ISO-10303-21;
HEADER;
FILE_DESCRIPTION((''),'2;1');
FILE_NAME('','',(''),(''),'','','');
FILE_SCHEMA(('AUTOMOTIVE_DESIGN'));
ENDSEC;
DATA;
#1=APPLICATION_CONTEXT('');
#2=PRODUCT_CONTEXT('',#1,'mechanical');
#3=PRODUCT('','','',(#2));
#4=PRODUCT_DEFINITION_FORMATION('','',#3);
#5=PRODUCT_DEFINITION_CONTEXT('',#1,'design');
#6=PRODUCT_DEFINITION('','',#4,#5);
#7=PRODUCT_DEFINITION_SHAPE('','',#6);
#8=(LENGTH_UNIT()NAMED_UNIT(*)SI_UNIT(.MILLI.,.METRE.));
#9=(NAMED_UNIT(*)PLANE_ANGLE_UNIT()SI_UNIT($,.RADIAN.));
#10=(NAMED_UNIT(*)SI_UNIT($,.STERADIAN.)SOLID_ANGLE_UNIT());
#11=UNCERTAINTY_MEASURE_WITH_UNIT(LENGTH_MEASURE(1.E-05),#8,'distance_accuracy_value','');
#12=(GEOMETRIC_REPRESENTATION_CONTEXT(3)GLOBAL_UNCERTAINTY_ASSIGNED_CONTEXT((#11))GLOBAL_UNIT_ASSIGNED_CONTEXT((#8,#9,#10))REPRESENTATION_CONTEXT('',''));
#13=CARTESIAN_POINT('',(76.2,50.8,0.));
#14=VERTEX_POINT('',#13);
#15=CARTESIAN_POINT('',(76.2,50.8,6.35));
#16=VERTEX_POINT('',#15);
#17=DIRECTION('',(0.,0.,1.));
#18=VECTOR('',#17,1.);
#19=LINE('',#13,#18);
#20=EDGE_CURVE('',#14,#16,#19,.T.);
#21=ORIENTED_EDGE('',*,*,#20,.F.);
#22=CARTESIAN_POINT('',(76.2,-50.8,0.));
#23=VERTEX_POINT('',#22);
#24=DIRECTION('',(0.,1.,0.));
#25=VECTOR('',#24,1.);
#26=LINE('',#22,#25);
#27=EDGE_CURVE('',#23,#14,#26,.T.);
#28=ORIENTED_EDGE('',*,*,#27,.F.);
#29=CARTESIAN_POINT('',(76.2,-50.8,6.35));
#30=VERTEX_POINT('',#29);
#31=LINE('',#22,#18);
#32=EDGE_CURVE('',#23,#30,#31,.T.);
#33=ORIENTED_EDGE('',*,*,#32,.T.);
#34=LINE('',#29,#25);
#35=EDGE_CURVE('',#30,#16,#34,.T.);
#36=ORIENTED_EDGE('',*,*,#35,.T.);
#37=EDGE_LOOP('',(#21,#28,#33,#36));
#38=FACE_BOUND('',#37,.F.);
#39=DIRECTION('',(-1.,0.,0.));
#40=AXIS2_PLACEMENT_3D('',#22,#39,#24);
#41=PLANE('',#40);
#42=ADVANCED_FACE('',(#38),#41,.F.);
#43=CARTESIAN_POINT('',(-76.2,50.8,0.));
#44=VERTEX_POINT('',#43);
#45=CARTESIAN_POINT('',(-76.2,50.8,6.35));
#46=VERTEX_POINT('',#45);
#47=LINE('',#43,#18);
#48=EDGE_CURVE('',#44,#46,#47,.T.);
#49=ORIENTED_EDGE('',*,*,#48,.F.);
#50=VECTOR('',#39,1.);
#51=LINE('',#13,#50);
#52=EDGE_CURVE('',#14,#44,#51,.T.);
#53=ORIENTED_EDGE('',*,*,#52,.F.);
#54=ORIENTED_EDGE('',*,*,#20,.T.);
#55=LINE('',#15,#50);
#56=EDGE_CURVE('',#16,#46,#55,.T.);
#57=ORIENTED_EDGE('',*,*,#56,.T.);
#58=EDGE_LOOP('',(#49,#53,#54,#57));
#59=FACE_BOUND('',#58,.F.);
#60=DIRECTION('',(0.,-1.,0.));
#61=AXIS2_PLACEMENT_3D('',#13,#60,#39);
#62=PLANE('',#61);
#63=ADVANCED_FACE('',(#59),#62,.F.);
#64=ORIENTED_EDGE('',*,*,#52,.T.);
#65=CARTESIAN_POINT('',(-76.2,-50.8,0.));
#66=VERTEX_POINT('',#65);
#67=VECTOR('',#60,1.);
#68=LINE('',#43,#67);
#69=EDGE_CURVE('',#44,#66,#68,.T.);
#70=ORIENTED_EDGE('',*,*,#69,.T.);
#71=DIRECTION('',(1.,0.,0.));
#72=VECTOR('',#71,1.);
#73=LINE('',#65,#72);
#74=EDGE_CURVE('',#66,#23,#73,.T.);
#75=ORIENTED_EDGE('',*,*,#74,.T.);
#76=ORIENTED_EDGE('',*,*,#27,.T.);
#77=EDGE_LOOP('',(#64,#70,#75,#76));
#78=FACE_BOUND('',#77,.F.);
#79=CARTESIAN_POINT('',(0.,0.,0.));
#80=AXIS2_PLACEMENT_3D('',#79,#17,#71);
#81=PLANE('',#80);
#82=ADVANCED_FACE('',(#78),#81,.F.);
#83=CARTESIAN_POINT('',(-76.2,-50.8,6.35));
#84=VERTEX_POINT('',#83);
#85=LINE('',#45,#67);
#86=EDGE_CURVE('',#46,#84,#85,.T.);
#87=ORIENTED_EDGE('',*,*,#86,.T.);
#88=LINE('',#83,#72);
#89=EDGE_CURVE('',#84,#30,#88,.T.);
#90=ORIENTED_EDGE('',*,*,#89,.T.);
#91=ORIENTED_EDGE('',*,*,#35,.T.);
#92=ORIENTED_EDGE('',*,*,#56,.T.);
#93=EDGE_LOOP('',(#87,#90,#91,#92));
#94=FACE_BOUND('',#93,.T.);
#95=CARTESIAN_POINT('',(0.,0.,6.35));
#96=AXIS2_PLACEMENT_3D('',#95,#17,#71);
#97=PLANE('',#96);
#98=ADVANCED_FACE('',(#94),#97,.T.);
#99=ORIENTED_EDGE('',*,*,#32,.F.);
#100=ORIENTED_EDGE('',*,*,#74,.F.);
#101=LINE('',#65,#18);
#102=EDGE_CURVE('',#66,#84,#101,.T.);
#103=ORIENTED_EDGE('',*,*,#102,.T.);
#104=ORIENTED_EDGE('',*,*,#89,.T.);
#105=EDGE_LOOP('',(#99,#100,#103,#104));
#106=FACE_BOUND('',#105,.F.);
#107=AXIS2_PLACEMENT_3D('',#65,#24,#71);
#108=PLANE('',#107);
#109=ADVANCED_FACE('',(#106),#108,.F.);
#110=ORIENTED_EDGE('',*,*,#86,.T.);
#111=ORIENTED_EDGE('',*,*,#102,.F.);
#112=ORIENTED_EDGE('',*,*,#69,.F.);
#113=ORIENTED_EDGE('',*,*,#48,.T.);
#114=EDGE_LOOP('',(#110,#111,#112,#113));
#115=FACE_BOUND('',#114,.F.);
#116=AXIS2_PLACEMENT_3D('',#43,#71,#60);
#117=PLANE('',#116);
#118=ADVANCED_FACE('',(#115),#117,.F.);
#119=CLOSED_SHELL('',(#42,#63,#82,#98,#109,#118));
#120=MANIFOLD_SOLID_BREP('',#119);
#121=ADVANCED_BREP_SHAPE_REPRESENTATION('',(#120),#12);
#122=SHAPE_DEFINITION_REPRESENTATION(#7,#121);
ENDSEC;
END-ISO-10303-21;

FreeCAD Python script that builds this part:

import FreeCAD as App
import Part
import Sketcher
from FreeCAD import Vector
Q = App.Units.Quantity

doc = App.newDocument("Part")
body = doc.addObject("PartDesign::Body", "Body")

# Sketch on XY plane
sketch1 = body.newObject("Sketcher::SketchObject", "Sketch")
sketch1.AttachmentSupport = (doc.getObject("XY_Plane"), [""])
sketch1.MapMode = "FlatFace"
sketch1.addGeometry([
    Part.LineSegment(Vector(-76, 51, 0), Vector(-76, -51, 0)),
    Part.LineSegment(Vector(-76, -51, 0), Vector(76, -51, 0)),
    Part.LineSegment(Vector(76, -51, 0), Vector(76, 51, 0)),
    Part.LineSegment(Vector(76, 51, 0), Vector(-76, 51, 0)),
], False)
sketch1.addConstraint([
    Sketcher.Constraint("Coincident", 0, 2, 1, 1),
    Sketcher.Constraint("Coincident", 1, 2, 2, 1),
    Sketcher.Constraint("Coincident", 2, 2, 3, 1),
    Sketcher.Constraint("Coincident", 3, 2, 0, 1),
    Sketcher.Constraint("Vertical", 0),
    Sketcher.Constraint("Horizontal", 1),
    Sketcher.Constraint("Vertical", 2),
    Sketcher.Constraint("Horizontal", 3),
    Sketcher.Constraint("Symmetric", 0, 2, 2, 2, -1, 1),
    Sketcher.Constraint("DistanceX", 1, 1, 1, 2, Q("6 in")),
    Sketcher.Constraint("DistanceY", 0, 2, 0, 1, Q("4 in")),
])
pad1 = body.newObject("PartDesign::Pad", "Pad")
pad1.Profile = sketch1
pad1.Length = Q("0.25 in")

doc.recompute()
